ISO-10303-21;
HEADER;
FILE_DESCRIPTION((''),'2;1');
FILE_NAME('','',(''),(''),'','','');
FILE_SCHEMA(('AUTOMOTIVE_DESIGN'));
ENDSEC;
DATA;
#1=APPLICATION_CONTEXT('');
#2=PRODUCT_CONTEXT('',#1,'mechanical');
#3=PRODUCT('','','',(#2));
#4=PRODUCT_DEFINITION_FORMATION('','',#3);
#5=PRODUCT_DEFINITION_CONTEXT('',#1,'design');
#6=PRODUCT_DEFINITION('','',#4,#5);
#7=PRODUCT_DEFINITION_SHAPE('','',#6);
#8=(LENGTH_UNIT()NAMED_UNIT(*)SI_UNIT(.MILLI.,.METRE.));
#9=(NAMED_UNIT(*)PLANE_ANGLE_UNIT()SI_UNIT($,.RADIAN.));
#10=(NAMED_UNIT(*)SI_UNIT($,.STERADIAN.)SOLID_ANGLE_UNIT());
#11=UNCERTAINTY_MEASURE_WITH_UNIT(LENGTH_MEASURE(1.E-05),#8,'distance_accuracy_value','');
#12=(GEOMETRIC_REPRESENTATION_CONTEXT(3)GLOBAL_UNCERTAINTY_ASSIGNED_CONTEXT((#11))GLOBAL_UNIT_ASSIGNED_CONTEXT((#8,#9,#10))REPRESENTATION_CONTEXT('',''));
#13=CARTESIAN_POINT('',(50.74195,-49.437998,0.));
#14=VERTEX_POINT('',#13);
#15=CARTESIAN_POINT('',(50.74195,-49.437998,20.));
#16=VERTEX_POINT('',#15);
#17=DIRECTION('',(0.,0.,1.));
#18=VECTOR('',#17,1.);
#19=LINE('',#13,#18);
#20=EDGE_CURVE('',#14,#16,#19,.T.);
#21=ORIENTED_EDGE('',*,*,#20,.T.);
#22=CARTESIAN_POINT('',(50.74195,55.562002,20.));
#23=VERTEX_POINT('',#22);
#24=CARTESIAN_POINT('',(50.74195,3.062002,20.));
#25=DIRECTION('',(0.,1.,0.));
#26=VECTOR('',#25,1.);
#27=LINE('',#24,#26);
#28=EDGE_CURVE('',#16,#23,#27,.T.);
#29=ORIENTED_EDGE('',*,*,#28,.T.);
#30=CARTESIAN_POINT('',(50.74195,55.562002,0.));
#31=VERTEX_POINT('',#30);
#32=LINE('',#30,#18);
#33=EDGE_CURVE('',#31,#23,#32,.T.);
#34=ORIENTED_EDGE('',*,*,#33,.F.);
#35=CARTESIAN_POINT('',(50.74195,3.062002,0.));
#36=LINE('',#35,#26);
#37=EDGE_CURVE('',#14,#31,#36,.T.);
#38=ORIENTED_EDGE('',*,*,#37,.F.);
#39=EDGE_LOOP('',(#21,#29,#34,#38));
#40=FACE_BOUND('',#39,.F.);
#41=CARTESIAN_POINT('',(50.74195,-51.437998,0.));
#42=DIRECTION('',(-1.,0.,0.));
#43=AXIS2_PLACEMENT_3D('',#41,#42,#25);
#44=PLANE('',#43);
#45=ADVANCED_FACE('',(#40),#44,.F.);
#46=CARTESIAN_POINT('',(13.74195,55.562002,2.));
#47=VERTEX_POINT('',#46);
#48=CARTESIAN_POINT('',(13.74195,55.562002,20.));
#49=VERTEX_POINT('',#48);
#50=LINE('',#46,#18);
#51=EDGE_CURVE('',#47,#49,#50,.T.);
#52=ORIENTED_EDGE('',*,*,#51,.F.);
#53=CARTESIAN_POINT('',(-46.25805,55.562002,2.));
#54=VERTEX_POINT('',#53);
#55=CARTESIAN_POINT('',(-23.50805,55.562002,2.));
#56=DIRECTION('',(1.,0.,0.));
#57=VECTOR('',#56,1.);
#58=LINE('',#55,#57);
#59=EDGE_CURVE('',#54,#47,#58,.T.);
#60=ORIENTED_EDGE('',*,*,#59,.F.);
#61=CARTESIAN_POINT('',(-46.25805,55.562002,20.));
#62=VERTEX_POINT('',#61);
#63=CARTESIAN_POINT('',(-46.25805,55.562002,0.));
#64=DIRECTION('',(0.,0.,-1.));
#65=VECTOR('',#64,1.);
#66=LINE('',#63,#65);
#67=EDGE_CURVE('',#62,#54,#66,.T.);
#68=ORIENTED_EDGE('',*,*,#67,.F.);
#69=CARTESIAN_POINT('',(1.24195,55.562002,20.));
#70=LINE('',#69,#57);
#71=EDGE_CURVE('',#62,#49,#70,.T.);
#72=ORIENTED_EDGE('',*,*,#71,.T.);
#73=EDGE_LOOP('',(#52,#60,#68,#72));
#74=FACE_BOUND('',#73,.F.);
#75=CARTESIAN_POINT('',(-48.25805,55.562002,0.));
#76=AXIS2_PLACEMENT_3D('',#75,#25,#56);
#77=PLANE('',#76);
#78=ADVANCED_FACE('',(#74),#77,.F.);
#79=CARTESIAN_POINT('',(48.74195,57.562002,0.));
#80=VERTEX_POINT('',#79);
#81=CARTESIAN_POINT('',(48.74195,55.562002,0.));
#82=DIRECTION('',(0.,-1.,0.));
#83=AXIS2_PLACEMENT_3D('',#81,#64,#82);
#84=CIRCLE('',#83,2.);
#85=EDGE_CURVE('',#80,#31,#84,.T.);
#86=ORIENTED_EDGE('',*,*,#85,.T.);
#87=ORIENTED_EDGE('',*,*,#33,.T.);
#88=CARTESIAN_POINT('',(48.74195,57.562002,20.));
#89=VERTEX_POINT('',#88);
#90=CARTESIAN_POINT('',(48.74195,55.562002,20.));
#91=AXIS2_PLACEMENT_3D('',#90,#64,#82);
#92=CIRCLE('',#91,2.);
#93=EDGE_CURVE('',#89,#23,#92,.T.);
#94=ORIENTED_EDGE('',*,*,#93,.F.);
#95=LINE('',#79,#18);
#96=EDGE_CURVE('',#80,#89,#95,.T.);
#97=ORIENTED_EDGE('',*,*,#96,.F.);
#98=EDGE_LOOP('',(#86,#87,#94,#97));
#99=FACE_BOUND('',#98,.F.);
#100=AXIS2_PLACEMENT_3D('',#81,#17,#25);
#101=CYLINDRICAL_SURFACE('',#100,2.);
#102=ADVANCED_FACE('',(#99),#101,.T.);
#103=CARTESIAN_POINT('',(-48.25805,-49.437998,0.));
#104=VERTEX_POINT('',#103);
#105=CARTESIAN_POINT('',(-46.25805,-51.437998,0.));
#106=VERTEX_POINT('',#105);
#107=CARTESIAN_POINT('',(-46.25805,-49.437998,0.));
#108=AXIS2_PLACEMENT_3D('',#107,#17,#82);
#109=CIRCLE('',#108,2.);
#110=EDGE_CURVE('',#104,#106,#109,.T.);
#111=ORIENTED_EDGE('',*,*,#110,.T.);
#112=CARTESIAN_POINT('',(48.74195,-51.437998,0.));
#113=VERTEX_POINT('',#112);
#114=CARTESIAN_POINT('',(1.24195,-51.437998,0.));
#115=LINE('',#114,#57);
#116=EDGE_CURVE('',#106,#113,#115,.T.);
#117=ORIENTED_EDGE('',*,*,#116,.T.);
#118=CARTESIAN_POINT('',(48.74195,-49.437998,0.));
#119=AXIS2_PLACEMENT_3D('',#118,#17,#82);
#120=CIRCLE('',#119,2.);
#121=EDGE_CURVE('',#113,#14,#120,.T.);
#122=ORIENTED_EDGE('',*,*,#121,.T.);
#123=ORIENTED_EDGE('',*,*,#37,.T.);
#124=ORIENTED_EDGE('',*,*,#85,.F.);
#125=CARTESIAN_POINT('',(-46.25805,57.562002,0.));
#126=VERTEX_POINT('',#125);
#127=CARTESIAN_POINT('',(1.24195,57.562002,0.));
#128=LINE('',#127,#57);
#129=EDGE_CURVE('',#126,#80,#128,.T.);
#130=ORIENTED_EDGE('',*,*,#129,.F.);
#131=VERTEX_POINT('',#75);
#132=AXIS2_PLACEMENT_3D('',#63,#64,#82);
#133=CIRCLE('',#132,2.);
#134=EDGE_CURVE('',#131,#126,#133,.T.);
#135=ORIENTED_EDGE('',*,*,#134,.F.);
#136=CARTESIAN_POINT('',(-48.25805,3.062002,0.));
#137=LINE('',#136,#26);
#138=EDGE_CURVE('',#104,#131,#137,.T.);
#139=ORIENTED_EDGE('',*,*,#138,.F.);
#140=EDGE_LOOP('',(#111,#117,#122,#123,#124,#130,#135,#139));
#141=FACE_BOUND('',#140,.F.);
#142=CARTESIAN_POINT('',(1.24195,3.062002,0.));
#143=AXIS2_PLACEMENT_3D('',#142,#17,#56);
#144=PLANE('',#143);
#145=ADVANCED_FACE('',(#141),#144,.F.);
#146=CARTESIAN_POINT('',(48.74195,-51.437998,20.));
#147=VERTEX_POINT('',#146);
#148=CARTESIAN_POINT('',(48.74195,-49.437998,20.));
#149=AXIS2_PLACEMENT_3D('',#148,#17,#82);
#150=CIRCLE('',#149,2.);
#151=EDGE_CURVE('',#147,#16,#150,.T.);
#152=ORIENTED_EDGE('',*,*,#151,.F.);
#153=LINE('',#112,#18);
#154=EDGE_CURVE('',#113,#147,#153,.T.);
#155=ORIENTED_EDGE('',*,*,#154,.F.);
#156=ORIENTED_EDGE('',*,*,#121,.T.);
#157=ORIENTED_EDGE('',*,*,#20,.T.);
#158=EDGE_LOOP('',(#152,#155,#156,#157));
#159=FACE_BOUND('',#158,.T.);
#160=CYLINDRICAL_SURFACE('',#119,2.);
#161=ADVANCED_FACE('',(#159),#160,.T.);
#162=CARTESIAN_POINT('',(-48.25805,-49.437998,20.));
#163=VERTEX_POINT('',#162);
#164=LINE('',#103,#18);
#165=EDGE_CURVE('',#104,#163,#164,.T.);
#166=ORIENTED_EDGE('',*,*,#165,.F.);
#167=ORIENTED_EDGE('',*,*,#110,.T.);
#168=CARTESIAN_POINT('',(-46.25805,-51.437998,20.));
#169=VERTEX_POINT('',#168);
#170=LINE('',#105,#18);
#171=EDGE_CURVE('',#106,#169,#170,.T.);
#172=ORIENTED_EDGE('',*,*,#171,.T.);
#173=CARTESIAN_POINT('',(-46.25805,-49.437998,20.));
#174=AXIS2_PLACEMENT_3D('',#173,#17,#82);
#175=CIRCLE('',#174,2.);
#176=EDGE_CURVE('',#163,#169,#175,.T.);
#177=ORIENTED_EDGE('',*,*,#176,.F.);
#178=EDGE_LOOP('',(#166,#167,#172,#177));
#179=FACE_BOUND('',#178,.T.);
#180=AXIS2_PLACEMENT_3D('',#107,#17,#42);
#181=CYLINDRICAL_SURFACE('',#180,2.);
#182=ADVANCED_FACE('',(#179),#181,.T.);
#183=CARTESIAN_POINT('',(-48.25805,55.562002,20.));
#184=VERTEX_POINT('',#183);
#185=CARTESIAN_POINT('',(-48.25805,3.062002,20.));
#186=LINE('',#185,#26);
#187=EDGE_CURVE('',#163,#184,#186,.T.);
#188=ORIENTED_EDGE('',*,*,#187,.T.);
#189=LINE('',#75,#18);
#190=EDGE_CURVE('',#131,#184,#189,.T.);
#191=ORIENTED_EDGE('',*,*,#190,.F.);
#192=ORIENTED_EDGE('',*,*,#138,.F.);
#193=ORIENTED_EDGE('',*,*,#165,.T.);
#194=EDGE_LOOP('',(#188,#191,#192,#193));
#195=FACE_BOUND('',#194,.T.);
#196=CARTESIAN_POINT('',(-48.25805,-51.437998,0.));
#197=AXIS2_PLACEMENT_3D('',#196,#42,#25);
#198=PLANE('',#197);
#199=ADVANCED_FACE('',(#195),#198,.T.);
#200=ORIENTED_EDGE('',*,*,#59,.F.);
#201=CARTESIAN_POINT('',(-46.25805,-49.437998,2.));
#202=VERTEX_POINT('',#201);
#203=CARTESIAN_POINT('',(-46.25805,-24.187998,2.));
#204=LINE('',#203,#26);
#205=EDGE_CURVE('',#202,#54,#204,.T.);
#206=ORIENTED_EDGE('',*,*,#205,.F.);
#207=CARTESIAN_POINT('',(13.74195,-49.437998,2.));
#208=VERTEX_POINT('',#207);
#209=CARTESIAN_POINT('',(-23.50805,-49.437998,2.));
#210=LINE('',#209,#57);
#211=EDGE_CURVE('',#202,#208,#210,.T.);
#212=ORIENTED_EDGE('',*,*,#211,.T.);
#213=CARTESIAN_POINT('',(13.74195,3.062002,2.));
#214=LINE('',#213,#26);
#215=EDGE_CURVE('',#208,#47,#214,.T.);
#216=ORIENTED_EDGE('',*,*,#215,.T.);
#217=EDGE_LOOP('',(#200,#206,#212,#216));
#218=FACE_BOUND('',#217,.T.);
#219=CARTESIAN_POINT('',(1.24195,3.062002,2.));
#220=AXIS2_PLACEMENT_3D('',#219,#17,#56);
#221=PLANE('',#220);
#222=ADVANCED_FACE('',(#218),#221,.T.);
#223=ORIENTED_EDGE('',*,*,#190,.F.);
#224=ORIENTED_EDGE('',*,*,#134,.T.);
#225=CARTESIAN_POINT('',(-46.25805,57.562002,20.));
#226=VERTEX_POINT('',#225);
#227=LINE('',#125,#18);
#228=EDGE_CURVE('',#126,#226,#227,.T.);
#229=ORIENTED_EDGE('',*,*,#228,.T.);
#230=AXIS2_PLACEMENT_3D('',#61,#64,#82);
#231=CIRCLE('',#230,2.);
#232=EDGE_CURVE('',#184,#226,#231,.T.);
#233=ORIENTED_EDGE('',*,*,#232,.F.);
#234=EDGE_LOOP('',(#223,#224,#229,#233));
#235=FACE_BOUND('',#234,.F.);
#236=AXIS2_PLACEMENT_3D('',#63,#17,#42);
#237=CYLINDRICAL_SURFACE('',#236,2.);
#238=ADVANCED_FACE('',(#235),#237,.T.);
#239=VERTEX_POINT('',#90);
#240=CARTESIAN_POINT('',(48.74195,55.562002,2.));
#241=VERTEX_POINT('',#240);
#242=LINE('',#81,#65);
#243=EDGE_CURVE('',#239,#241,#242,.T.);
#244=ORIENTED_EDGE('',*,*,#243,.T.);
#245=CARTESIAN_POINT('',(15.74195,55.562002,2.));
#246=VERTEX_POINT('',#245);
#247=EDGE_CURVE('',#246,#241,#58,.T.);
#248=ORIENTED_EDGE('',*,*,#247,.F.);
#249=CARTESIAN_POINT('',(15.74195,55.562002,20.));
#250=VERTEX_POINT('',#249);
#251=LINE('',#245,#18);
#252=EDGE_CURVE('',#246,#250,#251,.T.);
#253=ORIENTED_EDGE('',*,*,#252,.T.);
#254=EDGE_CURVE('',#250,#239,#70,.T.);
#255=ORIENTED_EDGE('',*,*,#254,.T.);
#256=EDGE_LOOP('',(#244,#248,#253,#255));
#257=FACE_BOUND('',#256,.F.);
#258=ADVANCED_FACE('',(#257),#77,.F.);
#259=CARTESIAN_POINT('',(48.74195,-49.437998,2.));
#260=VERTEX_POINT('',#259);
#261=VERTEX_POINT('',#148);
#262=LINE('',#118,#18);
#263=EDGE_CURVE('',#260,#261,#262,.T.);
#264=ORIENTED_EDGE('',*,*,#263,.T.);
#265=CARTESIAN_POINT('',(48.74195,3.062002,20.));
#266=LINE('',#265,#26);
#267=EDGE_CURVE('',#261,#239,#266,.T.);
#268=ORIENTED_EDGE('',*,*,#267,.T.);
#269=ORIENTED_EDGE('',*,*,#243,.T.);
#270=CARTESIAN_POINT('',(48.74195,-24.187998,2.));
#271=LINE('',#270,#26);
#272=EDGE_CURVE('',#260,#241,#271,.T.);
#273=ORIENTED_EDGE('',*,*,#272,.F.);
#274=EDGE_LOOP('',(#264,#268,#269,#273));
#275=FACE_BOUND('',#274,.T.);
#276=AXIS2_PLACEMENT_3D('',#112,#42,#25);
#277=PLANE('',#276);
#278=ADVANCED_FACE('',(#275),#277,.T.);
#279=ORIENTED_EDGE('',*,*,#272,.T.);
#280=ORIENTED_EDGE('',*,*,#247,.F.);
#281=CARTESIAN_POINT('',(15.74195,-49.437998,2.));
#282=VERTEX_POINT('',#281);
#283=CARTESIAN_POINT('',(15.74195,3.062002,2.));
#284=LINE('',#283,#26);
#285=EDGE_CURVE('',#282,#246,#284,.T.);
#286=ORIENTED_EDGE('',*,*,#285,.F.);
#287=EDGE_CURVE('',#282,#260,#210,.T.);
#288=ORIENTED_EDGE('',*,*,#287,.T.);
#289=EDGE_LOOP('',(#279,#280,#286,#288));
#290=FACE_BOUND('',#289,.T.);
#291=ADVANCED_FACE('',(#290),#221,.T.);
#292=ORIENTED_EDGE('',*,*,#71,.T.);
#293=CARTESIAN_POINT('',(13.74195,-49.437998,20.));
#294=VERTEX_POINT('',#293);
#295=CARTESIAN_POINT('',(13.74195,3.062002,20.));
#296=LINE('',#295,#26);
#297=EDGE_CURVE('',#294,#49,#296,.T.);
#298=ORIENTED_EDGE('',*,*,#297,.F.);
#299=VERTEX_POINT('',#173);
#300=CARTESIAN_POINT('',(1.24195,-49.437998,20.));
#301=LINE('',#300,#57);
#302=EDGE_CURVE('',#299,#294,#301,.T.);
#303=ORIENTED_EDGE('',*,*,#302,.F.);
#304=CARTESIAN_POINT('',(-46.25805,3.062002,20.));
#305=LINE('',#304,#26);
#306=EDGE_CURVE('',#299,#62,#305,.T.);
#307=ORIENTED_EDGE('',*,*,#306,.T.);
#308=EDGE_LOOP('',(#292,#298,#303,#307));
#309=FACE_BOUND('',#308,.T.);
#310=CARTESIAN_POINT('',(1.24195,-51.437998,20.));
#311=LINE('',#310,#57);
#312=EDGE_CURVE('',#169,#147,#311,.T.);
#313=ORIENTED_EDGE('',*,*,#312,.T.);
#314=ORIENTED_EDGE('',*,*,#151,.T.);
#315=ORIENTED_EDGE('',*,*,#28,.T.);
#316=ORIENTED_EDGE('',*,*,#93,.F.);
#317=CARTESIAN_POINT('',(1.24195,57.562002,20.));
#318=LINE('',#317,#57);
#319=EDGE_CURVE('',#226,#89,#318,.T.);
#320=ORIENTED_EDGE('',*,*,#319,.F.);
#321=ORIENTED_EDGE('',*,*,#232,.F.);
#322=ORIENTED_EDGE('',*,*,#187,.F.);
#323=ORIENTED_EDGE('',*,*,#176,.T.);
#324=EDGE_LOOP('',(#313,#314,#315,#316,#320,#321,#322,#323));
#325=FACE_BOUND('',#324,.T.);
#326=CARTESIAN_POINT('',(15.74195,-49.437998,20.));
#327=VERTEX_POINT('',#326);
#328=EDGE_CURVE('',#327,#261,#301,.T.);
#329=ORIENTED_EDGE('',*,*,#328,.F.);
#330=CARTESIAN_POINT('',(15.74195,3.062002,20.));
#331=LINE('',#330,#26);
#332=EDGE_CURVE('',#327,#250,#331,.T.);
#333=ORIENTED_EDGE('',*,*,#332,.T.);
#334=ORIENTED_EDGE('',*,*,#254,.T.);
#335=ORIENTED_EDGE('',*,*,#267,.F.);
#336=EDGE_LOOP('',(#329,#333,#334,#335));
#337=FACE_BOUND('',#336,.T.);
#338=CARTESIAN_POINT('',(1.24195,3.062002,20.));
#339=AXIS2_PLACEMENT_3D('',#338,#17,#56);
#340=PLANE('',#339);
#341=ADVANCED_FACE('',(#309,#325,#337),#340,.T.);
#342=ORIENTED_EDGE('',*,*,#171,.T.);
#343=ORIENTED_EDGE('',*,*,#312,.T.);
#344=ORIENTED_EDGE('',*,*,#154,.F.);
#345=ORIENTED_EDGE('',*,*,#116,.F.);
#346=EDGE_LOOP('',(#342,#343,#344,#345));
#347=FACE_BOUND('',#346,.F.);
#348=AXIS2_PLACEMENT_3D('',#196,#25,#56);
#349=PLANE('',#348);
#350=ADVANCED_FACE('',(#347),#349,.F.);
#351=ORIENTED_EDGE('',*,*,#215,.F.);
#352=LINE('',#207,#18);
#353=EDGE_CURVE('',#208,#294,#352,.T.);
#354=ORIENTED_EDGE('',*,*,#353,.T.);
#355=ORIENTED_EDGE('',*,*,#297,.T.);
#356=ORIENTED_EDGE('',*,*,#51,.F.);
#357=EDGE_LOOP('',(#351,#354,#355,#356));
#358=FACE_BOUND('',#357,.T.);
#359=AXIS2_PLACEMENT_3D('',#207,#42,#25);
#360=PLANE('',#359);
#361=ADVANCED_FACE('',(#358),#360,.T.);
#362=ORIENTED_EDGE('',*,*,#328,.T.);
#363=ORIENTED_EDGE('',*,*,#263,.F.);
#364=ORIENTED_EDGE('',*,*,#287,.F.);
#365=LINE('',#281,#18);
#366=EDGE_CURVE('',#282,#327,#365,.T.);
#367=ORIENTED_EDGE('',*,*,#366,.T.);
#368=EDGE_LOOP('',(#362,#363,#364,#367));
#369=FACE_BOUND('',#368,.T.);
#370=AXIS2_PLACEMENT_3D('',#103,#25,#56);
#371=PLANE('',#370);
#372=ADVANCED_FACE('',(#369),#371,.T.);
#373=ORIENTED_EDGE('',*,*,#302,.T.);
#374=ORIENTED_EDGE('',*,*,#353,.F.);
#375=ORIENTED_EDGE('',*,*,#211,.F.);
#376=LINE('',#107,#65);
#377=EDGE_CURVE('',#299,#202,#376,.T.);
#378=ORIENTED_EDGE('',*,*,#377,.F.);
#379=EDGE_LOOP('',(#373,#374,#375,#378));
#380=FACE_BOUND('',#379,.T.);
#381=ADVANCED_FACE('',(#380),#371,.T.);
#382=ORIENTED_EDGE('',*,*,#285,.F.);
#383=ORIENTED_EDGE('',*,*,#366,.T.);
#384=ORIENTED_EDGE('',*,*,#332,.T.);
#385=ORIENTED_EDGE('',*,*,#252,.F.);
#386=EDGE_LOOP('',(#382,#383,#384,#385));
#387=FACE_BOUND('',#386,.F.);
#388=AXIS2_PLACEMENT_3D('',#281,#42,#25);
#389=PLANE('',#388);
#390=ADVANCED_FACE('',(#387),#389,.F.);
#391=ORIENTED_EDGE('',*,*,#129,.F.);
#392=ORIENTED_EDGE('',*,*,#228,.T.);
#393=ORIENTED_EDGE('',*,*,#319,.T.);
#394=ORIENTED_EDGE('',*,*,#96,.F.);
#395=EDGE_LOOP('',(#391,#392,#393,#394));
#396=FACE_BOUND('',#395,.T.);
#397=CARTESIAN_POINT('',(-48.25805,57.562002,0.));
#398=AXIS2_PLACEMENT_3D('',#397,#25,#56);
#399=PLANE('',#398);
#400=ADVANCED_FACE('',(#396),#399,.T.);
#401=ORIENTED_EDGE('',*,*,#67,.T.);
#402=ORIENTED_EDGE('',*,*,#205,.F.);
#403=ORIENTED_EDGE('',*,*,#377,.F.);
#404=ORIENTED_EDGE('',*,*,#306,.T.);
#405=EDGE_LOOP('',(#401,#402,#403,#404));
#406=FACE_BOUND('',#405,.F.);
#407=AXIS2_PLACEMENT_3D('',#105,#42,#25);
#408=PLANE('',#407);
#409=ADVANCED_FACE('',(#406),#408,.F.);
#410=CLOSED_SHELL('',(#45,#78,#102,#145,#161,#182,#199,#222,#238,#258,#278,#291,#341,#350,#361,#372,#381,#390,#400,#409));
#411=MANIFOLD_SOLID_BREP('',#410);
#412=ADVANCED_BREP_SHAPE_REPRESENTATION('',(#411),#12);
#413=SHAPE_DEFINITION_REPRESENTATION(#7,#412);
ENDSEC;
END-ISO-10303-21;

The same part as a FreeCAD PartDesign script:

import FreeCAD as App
import Part
import Sketcher
from FreeCAD import Vector


def edges_at(feature, points):
    """Names of the edges that pass closest to the given points."""
    edges = feature.Shape.Edges
    near = lambda p: min(range(len(edges)), key=lambda i: edges[i].distToShape(Part.Vertex(*p))[0])
    return sorted({f"Edge{near(p) + 1}" for p in points})


def faces_at(feature, points):
    """Names of the faces that lie closest to the given points."""
    faces = feature.Shape.Faces
    near = lambda p: min(range(len(faces)), key=lambda i: faces[i].distToShape(Part.Vertex(*p))[0])
    return sorted({f"Face{near(p) + 1}" for p in points})

doc = App.newDocument("Part")
body = doc.addObject("PartDesign::Body", "Body")

sketch1 = body.newObject("Sketcher::SketchObject", "Sketch")
sketch1.AttachmentSupport = (doc.getObject("XY_Plane"), [""])
sketch1.MapMode = "FlatFace"
sketch1.addGeometry([
    Part.LineSegment(Vector(-48, 58, 0), Vector(-48, -51, 0)),
    Part.LineSegment(Vector(-48, -51, 0), Vector(51, -51, 0)),
    Part.LineSegment(Vector(51, -51, 0), Vector(51, 58, 0)),
    Part.LineSegment(Vector(51, 58, 0), Vector(-48, 58, 0)),
], False)
sketch1.addConstraint([
    Sketcher.Constraint("Coincident", 0, 2, 1, 1),
    Sketcher.Constraint("Coincident", 1, 2, 2, 1),
    Sketcher.Constraint("Coincident", 2, 2, 3, 1),
    Sketcher.Constraint("Coincident", 3, 2, 0, 1),
    Sketcher.Constraint("Vertical", 0),
    Sketcher.Constraint("Horizontal", 1),
    Sketcher.Constraint("Vertical", 2),
    Sketcher.Constraint("Horizontal", 3),
    Sketcher.Constraint("DistanceX", 1, 1, 1, 2, 99.0),
    Sketcher.Constraint("DistanceY", 0, 2, 0, 1, 109.0),
    Sketcher.Constraint("DistanceX", 0, 2, -1, 1, 48.25805),
    Sketcher.Constraint("DistanceY", 0, 2, -1, 1, 51.437998),
])
pad1 = body.newObject("PartDesign::Pad", "Pad")
pad1.Profile = sketch1
pad1.Length = 20
doc.recompute()

thickness = body.newObject("PartDesign::Thickness", "Thickness")
thickness.Base = (pad1, faces_at(pad1, [(1.242, 3.062, 20)]))
thickness.Value = 2
thickness.Reversed = True
thickness.Join = "Arc"

sketch2 = body.newObject("Sketcher::SketchObject", "Sketch001")
sketch2.AttachmentSupport = (doc.getObject("XY_Plane"), [""])
sketch2.MapMode = "FlatFace"
sketch2.AttachmentOffset = App.Placement(Vector(0, 0, 2), App.Rotation())
sketch2.addGeometry([
    Part.LineSegment(Vector(13.7, 55.6, 0), Vector(13.7, -49.4, 0)),
    Part.LineSegment(Vector(13.7, -49.4, 0), Vector(15.7, -49.4, 0)),
    Part.LineSegment(Vector(15.7, -49.4, 0), Vector(15.7, 55.6, 0)),
    Part.LineSegment(Vector(15.7, 55.6, 0), Vector(13.7, 55.6, 0)),
], False)
sketch2.addConstraint([
    Sketcher.Constraint("Coincident", 0, 2, 1, 1),
    Sketcher.Constraint("Coincident", 1, 2, 2, 1),
    Sketcher.Constraint("Coincident", 2, 2, 3, 1),
    Sketcher.Constraint("Coincident", 3, 2, 0, 1),
    Sketcher.Constraint("Vertical", 0),
    Sketcher.Constraint("Horizontal", 1),
    Sketcher.Constraint("Vertical", 2),
    Sketcher.Constraint("Horizontal", 3),
    Sketcher.Constraint("DistanceX", 1, 1, 1, 2, 2.0),
    Sketcher.Constraint("DistanceY", 0, 2, 0, 1, 105.0),
    Sketcher.Constraint("DistanceX", -1, 1, 0, 2, 13.74195),
    Sketcher.Constraint("DistanceY", 0, 2, -1, 1, 49.437998),
])
pad2 = body.newObject("PartDesign::Pad", "Pad001")
pad2.Profile = sketch2
pad2.Length = 18
doc.recompute()

fillet = body.newObject("PartDesign::Fillet", "Fillet")
fillet.Base = (pad2, edges_at(pad2, [
    (-48.258, 57.562, 10),
    (-48.258, -51.438, 10),
    (50.742, -51.438, 10),
    (50.742, 57.562, 10),
]))
fillet.Radius = 2

doc.recompute()
